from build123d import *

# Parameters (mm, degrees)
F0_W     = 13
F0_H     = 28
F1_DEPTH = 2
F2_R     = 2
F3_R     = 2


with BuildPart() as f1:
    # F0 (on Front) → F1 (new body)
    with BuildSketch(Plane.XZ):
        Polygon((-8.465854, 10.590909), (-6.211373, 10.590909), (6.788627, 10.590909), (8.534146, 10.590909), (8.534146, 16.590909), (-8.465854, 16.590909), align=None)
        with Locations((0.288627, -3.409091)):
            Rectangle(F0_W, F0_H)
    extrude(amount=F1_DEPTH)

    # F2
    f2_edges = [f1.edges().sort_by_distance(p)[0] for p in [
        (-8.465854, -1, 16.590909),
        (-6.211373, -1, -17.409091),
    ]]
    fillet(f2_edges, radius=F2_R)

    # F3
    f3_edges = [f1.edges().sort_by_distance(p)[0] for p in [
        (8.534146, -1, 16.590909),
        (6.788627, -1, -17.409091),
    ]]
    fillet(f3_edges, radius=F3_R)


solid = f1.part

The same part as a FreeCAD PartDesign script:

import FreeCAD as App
import Part
import Sketcher

V = App.Vector
Q = App.Units.Quantity


def edges_at(feature, points):
    """Names of the edges that pass closest to the given points."""
    edges = feature.Shape.Edges
    near = lambda p: min(range(len(edges)), key=lambda i: edges[i].distToShape(Part.Vertex(*p))[0])
    return sorted({f"Edge{near(p) + 1}" for p in points})


def add_polygon(sketch, points):
    """Adds a closed chain of lines whose ends are joined by coincident constraints."""
    first, n = sketch.GeometryCount, len(points)
    for a, b in zip(points, points[1:] + points[:1]):
        sketch.addGeometry(Part.LineSegment(App.Vector(*a, 0), App.Vector(*b, 0)), False)
    for i in range(n):
        sketch.addConstraint(Sketcher.Constraint("Coincident", first + i, 2, first + (i + 1) % n, 1))

doc = App.newDocument("Part")
body = doc.addObject("PartDesign::Body", "Body")

# Sketch on XZ plane
sketch1 = body.newObject("Sketcher::SketchObject", "Sketch")
sketch1.AttachmentSupport = (doc.getObject("XZ_Plane"), [""])
sketch1.MapMode = "FlatFace"
add_polygon(sketch1, [(-8.465854, 10.590909), (-6.211373, 10.590909), (-6.211373, -17.409091), (6.788627, -17.409091), (6.788627, 10.590909), (8.534146, 10.590909), (8.534146, 16.590909), (-8.465854, 16.590909)])  # lines 0-7
sketch1.addConstraint(Sketcher.Constraint("Horizontal", 0))
sketch1.addConstraint(Sketcher.Constraint("Vertical", 1))
sketch1.addConstraint(Sketcher.Constraint("Horizontal", 2))
sketch1.addConstraint(Sketcher.Constraint("Vertical", 3))
sketch1.addConstraint(Sketcher.Constraint("Horizontal", 4))
sketch1.addConstraint(Sketcher.Constraint("Vertical", 5))
sketch1.addConstraint(Sketcher.Constraint("Horizontal", 6))
sketch1.addConstraint(Sketcher.Constraint("Vertical", 7))
sketch1.addConstraint(Sketcher.Constraint("Horizontal", 0, 2, 3, 2))
sketch1.addConstraint(Sketcher.Constraint("DistanceX", 2, 1, 2, 2, Q("13 mm")))
sketch1.addConstraint(Sketcher.Constraint("DistanceX", 6, 2, 6, 1, Q("17 mm")))
sketch1.addConstraint(Sketcher.Constraint("DistanceY", 1, 2, 1, 1, Q("28 mm")))
sketch1.addConstraint(Sketcher.Constraint("DistanceY", 5, 1, 5, 2, Q("6 mm")))
sketch1.addConstraint(Sketcher.Constraint("DistanceX", 0, 1, 0, 2, Q("2.254481 mm")))
sketch1.addConstraint(Sketcher.Constraint("DistanceY", -1, 1, 0, 2, Q("10.590909 mm")))
sketch1.addConstraint(Sketcher.Constraint("DistanceX", 0, 2, -1, 1, Q("6.211373 mm")))
pad1 = body.newObject("PartDesign::Pad", "Pad")
pad1.Profile = sketch1
pad1.Length = 2
doc.recompute()

fillet = body.newObject("PartDesign::Fillet", "Fillet")
fillet.Base = (pad1, edges_at(pad1, [(-8.466, -1, 16.591), (-6.211, -1, -17.409)]))
fillet.Radius = 2
doc.recompute()

fillet2 = body.newObject("PartDesign::Fillet", "Fillet001")
fillet2.Base = (fillet, edges_at(fillet, [(8.534, -1, 16.591), (6.789, -1, -17.409)]))
fillet2.Radius = 2

doc.recompute()
